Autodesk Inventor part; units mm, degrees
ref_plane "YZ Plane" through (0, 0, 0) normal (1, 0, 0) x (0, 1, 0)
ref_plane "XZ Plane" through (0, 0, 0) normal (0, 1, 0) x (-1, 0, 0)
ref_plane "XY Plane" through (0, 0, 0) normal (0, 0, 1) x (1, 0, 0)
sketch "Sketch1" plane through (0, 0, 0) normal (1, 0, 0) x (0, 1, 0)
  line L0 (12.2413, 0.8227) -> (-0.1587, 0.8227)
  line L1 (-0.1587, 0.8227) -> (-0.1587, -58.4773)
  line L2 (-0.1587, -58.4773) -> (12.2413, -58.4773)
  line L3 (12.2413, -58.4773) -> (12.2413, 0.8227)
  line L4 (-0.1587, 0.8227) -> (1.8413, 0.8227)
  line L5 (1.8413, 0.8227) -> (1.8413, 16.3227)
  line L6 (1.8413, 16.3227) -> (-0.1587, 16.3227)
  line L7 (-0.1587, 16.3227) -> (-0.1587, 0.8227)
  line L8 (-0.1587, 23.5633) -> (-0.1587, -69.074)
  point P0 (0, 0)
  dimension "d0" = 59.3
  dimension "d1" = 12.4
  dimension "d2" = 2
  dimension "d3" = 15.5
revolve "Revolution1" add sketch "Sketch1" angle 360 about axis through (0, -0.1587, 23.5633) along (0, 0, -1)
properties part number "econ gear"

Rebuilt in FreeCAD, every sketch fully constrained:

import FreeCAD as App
import Part
import Sketcher

V = App.Vector
Q = App.Units.Quantity


def add_polygon(sketch, points):
    """Adds a closed chain of lines whose ends are joined by coincident constraints."""
    first, n = sketch.GeometryCount, len(points)
    for a, b in zip(points, points[1:] + points[:1]):
        sketch.addGeometry(Part.LineSegment(App.Vector(*a, 0), App.Vector(*b, 0)), False)
    for i in range(n):
        sketch.addConstraint(Sketcher.Constraint("Coincident", first + i, 2, first + (i + 1) % n, 1))

doc = App.newDocument("Part")
body = doc.addObject("PartDesign::Body", "Body")

# Sketch on YZ plane
sketch1 = doc.addObject("Sketcher::SketchObject", "Sketch")
body.addObject(sketch1)
sketch1.AttachmentSupport = (doc.YZ_Plane, [""])
sketch1.MapMode = "FlatFace"
add_polygon(sketch1, [(12.2, -58.5), (12.2, 0.8), (1.8, 0.8), (1.8, 16.3), (-0.2, 16.3), (-0.2, -58.5)])  # lines 0-5
sketch1.addGeometry(Part.LineSegment(V(-0.2, 16.3, 0), V(-0.2, -58.5, 0)), True)  # axis
sketch1.addConstraint(Sketcher.Constraint("Vertical", 0))
sketch1.addConstraint(Sketcher.Constraint("Horizontal", 1))
sketch1.addConstraint(Sketcher.Constraint("Vertical", 2))
sketch1.addConstraint(Sketcher.Constraint("Horizontal", 3))
sketch1.addConstraint(Sketcher.Constraint("Vertical", 4))
sketch1.addConstraint(Sketcher.Constraint("Horizontal", 5))
sketch1.addConstraint(Sketcher.Constraint("Vertical", 6))
sketch1.addConstraint(Sketcher.Constraint("Coincident", 6, 1, 3, 2))
sketch1.addConstraint(Sketcher.Constraint("Horizontal", 5, 2, 6, 2))
sketch1.addConstraint(Sketcher.Constraint("DistanceX", 3, 2, 3, 1, Q("2 mm")))
sketch1.addConstraint(Sketcher.Constraint("DistanceX", 5, 1, 5, 2, Q("12.4 mm")))
sketch1.addConstraint(Sketcher.Constraint("DistanceY", 0, 1, 0, 2, Q("59.3 mm")))
sketch1.addConstraint(Sketcher.Constraint("DistanceY", 2, 1, 2, 2, Q("15.5 mm")))
sketch1.addConstraint(Sketcher.Constraint("DistanceX", -1, 1, 0, 2, Q("12.2413 mm")))
sketch1.addConstraint(Sketcher.Constraint("DistanceY", -1, 1, 0, 2, Q("0.8227 mm")))
revolution = doc.addObject("PartDesign::Revolution", "Revolution")
body.addObject(revolution)
revolution.Profile = sketch1
revolution.ReferenceAxis = (sketch1, ["Axis0"])
revolution.Angle = 360

doc.recompute()
